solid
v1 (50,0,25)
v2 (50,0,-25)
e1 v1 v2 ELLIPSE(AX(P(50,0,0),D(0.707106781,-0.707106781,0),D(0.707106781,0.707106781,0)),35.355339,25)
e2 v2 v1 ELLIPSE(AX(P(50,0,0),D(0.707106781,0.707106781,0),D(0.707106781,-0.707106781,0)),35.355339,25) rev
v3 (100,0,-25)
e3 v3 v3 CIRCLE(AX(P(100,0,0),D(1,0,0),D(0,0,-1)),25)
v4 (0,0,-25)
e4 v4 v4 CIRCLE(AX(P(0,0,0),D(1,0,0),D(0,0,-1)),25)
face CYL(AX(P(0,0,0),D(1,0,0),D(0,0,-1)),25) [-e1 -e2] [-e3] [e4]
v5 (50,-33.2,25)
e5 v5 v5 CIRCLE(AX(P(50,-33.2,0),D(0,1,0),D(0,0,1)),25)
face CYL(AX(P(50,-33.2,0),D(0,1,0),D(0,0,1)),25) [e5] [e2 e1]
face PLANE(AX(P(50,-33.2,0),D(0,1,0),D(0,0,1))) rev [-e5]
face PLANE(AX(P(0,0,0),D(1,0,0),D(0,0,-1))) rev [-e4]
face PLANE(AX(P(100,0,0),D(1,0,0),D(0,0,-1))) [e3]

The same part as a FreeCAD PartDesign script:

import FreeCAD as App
import Part
import Sketcher

doc = App.newDocument("Part")
body = doc.addObject("PartDesign::Body", "Body")

sketch1 = body.newObject("Sketcher::SketchObject", "Sketch")
sketch1.AttachmentSupport = (doc.getObject("YZ_Plane"), [""])
sketch1.MapMode = "FlatFace"
sketch1.addGeometry(Part.Circle(App.Vector(0, 0, 0), App.Vector(0, 0, 1), 25), False)
sketch1.addConstraint([
    Sketcher.Constraint("Coincident", 0, 3, -1, 1),
    Sketcher.Constraint("Diameter", 0, 50.0),
])

sketch2 = body.newObject("Sketcher::SketchObject", "Sketch001")
sketch2.AttachmentSupport = (doc.getObject("XY_Plane"), [""])
sketch2.MapMode = "FlatFace"
sketch2.addGeometry(Part.LineSegment(App.Vector(0, 0, 0), App.Vector(100, 0, 0)), False)
sketch2.addConstraint([
    Sketcher.Constraint("Horizontal", 0),
    Sketcher.Constraint("Coincident", 0, 1, -1, 1),
    Sketcher.Constraint("DistanceX", 0, 1, 0, 2, 100.0),
])
doc.recompute()

additivepipe = body.newObject("PartDesign::AdditivePipe", "AdditivePipe")
additivepipe.Profile = sketch1
additivepipe.Spine = (sketch2, ["Edge1"])

sketch3 = body.newObject("Sketcher::SketchObject", "Sketch002")
sketch3.AttachmentSupport = (doc.getObject("XZ_Plane"), [""])
sketch3.MapMode = "FlatFace"
sketch3.addGeometry(Part.Circle(App.Vector(50, 0, 0), App.Vector(0, 0, 1), 25), False)
sketch3.addConstraint([
    Sketcher.Constraint("PointOnObject", 0, 3, -1),
    Sketcher.Constraint("Diameter", 0, 50.0),
    Sketcher.Constraint("DistanceX", -1, 1, 0, 3, 50.0),
])
pad1 = body.newObject("PartDesign::Pad", "Pad")
pad1.Profile = sketch3
pad1.Length = 33.2

doc.recompute()
